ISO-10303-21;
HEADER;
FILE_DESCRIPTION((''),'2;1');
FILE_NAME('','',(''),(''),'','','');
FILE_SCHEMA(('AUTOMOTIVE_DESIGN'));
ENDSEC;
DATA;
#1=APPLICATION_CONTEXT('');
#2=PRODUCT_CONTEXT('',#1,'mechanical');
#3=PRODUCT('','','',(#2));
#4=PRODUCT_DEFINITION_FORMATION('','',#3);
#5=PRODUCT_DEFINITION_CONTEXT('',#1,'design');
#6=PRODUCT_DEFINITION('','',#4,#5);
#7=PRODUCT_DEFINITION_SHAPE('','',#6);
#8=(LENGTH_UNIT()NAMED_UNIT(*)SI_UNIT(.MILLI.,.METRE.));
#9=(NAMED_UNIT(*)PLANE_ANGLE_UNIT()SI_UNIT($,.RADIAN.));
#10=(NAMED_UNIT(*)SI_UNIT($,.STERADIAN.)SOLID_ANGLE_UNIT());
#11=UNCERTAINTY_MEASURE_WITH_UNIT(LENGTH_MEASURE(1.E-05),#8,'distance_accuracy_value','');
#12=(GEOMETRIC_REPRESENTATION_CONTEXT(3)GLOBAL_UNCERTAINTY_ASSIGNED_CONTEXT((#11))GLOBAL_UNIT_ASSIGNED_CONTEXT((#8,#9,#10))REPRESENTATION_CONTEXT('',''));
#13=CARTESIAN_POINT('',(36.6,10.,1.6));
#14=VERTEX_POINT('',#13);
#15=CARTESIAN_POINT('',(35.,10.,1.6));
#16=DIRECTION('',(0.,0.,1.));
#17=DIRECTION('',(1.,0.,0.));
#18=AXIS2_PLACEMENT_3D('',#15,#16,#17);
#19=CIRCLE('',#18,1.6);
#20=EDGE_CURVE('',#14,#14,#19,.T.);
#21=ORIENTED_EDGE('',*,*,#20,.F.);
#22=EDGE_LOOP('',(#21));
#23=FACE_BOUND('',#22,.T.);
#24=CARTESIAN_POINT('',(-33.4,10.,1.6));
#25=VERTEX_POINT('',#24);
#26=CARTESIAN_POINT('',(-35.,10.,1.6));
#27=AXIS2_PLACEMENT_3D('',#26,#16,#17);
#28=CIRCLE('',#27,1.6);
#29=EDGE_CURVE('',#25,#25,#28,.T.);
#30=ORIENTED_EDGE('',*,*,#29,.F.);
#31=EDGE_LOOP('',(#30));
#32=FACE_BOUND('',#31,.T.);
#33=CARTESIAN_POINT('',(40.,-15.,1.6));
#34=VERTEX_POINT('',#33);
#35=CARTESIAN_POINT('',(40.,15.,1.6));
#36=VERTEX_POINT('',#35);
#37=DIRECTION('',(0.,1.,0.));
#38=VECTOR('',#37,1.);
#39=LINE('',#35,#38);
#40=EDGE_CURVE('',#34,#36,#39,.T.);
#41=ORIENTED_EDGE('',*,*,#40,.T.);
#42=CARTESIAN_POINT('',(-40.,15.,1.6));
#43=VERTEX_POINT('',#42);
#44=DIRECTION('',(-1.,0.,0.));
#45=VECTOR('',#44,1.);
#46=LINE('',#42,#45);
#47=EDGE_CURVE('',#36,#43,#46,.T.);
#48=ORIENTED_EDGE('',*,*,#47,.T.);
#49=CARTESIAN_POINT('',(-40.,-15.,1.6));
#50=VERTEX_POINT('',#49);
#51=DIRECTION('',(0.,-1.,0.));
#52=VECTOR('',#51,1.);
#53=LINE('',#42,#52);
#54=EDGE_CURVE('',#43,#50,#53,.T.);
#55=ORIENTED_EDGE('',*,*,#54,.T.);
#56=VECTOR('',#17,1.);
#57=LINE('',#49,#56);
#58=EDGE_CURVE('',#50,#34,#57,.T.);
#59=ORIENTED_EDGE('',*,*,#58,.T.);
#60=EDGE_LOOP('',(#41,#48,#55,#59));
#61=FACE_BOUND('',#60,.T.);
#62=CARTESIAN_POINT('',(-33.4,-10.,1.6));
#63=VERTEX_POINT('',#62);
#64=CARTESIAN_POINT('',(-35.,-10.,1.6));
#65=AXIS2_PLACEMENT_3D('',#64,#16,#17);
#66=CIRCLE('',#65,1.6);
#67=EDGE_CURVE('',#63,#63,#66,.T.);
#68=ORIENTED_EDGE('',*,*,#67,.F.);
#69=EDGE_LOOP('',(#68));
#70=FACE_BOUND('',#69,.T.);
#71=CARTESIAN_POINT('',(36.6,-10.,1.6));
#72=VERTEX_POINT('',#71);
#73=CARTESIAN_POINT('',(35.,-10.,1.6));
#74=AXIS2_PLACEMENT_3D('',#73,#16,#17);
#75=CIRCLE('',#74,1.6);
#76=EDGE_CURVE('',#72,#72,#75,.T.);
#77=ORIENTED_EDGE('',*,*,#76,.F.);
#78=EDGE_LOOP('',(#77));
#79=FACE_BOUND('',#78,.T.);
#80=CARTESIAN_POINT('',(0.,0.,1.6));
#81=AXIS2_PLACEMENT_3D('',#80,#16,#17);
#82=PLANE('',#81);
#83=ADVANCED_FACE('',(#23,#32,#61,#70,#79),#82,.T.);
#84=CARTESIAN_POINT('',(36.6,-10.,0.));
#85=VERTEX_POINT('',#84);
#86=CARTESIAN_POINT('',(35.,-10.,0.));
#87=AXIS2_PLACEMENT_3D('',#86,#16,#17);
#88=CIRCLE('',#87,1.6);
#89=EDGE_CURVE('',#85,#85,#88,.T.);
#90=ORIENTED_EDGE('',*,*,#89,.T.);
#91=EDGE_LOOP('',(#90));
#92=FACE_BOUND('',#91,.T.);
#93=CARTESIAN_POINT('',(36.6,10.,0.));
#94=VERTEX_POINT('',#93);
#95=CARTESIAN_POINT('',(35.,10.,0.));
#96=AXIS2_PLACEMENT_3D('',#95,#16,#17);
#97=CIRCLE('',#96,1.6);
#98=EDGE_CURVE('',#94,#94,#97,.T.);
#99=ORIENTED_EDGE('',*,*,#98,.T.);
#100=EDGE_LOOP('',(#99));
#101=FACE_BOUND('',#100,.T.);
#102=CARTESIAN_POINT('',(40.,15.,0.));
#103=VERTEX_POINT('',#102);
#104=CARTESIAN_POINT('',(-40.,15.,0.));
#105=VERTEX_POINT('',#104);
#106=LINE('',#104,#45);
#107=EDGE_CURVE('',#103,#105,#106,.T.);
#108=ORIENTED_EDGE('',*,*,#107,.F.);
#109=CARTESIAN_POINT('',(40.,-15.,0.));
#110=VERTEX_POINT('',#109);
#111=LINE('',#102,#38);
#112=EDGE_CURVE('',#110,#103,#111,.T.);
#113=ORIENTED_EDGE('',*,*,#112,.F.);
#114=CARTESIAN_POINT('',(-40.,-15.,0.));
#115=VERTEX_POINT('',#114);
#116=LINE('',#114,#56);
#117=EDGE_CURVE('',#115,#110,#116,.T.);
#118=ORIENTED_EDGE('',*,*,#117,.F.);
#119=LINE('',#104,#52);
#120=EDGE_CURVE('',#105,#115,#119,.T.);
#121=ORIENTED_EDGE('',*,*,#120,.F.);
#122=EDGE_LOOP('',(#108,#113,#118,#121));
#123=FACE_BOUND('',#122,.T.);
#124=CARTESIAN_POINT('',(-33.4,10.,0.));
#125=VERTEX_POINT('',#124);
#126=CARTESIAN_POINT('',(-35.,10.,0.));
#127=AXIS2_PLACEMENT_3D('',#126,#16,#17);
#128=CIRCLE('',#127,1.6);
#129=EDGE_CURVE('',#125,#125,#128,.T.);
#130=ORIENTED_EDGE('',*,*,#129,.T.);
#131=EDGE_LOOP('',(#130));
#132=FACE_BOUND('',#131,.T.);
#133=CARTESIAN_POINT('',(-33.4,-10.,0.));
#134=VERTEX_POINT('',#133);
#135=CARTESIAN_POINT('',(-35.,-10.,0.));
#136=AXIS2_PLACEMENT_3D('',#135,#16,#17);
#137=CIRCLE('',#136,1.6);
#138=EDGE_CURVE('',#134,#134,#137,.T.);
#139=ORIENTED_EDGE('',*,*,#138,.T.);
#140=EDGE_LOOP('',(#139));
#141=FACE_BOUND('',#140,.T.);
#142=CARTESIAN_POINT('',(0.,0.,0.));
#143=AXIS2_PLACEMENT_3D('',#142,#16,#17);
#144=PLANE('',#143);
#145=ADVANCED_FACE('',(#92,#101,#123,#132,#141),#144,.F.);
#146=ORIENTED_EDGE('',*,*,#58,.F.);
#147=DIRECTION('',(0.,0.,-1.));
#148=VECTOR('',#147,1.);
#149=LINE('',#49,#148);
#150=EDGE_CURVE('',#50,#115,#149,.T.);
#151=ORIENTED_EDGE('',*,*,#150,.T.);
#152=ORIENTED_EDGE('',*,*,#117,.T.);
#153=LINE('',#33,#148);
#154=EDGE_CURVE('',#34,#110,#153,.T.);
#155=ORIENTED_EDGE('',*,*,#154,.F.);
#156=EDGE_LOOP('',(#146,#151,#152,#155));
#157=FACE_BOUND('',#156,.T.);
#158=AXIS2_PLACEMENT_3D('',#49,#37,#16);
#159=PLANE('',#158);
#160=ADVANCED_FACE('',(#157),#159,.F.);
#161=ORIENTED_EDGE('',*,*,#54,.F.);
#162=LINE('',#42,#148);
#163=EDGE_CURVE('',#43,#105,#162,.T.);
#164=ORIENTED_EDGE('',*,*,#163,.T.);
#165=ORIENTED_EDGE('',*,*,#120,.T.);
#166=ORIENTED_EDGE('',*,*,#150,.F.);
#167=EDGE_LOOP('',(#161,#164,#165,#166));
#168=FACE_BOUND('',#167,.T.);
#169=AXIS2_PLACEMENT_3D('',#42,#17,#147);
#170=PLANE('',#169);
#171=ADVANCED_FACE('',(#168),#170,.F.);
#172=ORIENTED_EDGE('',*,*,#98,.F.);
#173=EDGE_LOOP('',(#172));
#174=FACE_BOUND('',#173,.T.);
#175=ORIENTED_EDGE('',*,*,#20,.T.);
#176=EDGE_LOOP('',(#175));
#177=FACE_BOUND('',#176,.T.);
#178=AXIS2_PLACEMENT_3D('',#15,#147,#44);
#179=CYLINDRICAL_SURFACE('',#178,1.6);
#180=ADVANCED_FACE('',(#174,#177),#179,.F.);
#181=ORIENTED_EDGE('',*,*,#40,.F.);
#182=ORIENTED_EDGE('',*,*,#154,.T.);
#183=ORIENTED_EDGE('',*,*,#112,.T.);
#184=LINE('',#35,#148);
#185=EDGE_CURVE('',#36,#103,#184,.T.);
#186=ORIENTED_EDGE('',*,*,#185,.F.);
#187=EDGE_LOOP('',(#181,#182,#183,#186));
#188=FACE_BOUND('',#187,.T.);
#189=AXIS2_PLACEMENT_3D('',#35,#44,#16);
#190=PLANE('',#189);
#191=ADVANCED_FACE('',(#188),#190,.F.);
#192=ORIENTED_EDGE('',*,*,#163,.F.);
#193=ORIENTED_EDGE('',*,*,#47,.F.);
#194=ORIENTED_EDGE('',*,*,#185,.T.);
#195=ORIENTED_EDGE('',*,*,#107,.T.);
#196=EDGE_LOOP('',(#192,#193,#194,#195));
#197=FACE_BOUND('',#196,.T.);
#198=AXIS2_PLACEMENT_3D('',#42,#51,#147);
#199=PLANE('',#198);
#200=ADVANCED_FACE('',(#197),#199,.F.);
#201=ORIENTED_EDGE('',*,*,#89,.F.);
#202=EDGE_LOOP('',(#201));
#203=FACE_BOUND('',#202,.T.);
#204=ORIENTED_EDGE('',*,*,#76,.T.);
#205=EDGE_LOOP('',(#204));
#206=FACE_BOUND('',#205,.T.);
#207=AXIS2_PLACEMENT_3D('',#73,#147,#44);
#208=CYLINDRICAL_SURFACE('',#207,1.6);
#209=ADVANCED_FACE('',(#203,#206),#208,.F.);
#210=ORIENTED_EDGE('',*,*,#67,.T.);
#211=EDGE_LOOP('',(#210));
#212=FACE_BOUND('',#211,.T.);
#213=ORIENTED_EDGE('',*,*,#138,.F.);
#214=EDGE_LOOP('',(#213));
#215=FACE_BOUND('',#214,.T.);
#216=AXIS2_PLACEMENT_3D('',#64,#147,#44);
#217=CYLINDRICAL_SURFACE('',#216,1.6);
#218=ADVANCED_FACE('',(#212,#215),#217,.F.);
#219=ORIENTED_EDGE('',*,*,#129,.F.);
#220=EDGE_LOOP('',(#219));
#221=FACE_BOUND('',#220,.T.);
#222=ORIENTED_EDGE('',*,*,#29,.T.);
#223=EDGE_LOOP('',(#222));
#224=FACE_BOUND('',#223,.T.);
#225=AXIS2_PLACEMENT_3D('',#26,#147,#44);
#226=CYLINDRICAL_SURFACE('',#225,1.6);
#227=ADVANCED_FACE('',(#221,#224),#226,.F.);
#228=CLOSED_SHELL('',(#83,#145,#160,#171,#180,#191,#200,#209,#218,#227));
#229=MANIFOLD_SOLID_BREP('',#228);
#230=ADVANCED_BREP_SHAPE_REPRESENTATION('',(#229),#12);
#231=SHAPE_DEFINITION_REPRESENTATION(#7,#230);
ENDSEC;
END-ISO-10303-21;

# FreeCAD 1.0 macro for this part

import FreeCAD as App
import Part
import Sketcher

V = App.Vector
Q = App.Units.Quantity


def add_polygon(sketch, points):
    """Adds a closed chain of lines whose ends are joined by coincident constraints."""
    first, n = sketch.GeometryCount, len(points)
    for a, b in zip(points, points[1:] + points[:1]):
        sketch.addGeometry(Part.LineSegment(App.Vector(*a, 0), App.Vector(*b, 0)), False)
    for i in range(n):
        sketch.addConstraint(Sketcher.Constraint("Coincident", first + i, 2, first + (i + 1) % n, 1))

doc = App.newDocument("Part")
body = doc.addObject("PartDesign::Body", "Body")

sketch1 = body.newObject("Sketcher::SketchObject", "Sketch")
sketch1.AttachmentSupport = (doc.getObject("XY_Plane"), [""])
sketch1.MapMode = "FlatFace"
add_polygon(sketch1, [(-40, 15), (-40, -15), (40, -15), (40, 15)])
sketch1.addGeometry(Part.Circle(V(-35, -10, 0), V(0, 0, 1), 1.6), False)
sketch1.addGeometry(Part.Circle(V(35, -10, 0), V(0, 0, 1), 1.6), False)
sketch1.addGeometry(Part.Circle(V(-35, 10, 0), V(0, 0, 1), 1.6), False)
sketch1.addGeometry(Part.Circle(V(35, 10, 0), V(0, 0, 1), 1.6), False)
sketch1.addConstraint([
    Sketcher.Constraint("Vertical", 0),
    Sketcher.Constraint("Horizontal", 1),
    Sketcher.Constraint("Vertical", 2),
    Sketcher.Constraint("Horizontal", 3),
    Sketcher.Constraint("Equal", 4, 5),
    Sketcher.Constraint("Equal", 5, 6),
    Sketcher.Constraint("Equal", 6, 7),
    Sketcher.Constraint("Symmetric", 5, 3, 6, 3, -1, 1),
    Sketcher.Constraint("Symmetric", 4, 3, 7, 3, -1, 1),
    Sketcher.Constraint("Symmetric", 0, 2, 2, 2, -1, 1),
    Sketcher.Constraint("Symmetric", 4, 3, 5, 3, -2),
    Sketcher.Constraint("Diameter", 4, Q("3.2 mm")),
    Sketcher.Constraint("DistanceX", 1, 1, 1, 2, Q("80 mm")),
    Sketcher.Constraint("DistanceY", 0, 2, 0, 1, Q("30 mm")),
    Sketcher.Constraint("DistanceX", 4, 3, -1, 1, Q("35 mm")),
    Sketcher.Constraint("DistanceY", 4, 3, -1, 1, Q("10 mm")),
])
pad1 = body.newObject("PartDesign::Pad", "Pad")
pad1.Profile = sketch1
pad1.Length = 1.6

doc.recompute()
